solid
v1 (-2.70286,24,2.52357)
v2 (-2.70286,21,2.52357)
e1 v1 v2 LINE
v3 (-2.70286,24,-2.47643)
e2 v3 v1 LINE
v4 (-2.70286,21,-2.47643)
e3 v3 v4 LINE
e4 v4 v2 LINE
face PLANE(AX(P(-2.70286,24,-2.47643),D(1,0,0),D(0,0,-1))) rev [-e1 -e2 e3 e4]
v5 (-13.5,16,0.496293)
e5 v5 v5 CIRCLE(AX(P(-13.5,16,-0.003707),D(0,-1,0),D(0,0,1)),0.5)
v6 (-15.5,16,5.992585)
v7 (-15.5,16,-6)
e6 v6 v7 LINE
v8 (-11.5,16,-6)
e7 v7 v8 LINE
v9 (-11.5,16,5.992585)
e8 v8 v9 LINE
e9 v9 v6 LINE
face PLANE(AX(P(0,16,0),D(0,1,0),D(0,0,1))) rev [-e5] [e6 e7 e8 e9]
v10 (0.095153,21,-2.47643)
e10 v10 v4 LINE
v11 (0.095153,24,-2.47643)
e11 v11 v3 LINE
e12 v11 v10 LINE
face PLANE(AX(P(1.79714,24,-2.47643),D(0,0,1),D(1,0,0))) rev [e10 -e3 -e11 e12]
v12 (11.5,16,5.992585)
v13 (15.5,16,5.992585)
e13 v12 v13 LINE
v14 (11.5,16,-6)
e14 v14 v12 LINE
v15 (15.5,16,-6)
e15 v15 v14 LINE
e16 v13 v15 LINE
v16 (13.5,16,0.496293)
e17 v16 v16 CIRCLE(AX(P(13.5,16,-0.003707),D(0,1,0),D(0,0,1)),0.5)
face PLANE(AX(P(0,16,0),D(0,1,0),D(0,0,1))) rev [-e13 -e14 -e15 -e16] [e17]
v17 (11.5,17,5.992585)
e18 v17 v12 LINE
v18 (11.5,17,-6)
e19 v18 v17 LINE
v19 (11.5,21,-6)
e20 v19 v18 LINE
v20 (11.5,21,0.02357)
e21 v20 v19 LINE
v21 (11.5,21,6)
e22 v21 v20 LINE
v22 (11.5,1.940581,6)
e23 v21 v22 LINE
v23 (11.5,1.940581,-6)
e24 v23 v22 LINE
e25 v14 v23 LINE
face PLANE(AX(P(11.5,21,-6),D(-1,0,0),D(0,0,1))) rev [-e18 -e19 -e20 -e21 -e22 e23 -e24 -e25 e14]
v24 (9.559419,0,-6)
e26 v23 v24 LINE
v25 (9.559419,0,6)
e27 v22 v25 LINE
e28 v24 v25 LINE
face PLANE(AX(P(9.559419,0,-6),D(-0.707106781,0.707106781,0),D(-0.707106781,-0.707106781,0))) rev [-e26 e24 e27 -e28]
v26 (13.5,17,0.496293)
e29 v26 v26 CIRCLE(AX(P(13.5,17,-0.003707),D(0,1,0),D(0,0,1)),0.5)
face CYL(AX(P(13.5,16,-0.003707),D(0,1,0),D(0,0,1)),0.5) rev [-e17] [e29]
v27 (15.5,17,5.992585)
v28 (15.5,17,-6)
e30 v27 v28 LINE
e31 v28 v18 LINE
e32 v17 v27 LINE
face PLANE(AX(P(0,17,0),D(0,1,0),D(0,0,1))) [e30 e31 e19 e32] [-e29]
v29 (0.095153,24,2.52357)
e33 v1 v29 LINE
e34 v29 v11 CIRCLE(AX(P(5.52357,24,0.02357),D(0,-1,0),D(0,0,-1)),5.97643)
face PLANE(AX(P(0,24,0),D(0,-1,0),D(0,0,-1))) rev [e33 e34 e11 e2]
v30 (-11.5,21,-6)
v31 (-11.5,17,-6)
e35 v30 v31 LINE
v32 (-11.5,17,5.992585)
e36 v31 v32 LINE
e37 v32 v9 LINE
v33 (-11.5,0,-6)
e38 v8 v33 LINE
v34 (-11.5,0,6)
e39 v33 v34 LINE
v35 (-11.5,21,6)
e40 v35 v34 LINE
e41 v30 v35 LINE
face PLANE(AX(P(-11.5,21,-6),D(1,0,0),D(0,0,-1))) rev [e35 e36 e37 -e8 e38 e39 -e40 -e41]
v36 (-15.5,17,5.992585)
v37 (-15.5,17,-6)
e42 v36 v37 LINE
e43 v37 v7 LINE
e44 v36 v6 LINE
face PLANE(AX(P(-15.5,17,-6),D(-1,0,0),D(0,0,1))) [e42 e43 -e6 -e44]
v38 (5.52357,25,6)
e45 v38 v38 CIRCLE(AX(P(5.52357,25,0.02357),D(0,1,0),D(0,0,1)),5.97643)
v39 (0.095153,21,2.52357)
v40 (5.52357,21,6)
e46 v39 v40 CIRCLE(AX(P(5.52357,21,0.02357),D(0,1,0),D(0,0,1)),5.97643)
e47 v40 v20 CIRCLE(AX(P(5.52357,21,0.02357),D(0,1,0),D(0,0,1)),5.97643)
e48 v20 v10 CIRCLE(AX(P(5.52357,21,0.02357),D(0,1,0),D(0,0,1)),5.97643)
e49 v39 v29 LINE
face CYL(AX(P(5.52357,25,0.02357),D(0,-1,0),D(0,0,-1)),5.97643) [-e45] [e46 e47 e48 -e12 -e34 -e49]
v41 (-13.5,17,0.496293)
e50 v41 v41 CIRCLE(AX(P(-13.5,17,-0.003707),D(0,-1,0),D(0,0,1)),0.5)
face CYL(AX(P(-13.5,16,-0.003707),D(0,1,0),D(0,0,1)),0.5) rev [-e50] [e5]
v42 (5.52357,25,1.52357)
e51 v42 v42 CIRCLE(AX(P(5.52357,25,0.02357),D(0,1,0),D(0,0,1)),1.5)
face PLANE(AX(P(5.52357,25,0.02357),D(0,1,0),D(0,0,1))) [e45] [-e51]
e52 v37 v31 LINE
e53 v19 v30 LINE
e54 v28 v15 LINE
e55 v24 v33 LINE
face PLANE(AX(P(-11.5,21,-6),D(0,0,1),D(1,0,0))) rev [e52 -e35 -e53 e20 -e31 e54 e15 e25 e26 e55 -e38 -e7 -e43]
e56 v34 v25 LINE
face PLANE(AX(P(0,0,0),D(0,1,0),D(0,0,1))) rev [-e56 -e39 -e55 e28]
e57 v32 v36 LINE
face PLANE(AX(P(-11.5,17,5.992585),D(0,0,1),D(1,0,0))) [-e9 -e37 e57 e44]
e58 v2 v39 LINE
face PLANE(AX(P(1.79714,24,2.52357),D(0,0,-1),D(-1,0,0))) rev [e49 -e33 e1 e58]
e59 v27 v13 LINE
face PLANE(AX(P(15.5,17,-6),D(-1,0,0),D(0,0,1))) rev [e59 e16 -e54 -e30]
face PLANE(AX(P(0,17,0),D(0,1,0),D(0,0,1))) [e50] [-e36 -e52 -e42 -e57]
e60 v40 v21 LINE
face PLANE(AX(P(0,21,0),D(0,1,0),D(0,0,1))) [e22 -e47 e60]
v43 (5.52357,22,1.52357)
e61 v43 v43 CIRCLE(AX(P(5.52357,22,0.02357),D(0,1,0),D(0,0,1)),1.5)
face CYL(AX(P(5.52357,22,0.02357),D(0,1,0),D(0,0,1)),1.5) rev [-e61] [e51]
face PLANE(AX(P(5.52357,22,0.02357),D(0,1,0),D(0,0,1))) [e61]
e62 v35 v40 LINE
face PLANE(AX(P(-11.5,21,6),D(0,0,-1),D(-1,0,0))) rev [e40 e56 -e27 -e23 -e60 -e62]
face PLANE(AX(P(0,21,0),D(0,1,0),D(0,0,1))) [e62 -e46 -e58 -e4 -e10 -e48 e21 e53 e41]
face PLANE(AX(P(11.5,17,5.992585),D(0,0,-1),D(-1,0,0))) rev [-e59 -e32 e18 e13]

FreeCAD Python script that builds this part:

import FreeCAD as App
import Part
import Sketcher
from FreeCAD import Vector


def add_polygon(sketch, points):
    """Adds a closed chain of lines whose ends are joined by coincident constraints."""
    first, n = sketch.GeometryCount, len(points)
    for a, b in zip(points, points[1:] + points[:1]):
        sketch.addGeometry(Part.LineSegment(App.Vector(*a, 0), App.Vector(*b, 0)), False)
    for i in range(n):
        sketch.addConstraint(Sketcher.Constraint("Coincident", first + i, 2, first + (i + 1) % n, 1))

doc = App.newDocument("Part")
params = doc.addObject("Spreadsheet::Sheet", "Params")
for row, (alias, value) in enumerate([
    ("sketch1_width", "23 mm"),
    ("sketch1_height", "12 mm"),
    ("pad1_length", "21 mm"),
    ("sketch2_width", "4 mm"),
    ("pad2_length", "1 mm"),
    ("sketch3_diameter", "1 mm"),
    ("pocket1_length", "1 mm"),
    ("pad3_length", "4 mm"),
    ("sketch5_height", "5 mm"),
    ("sketch5_width", "4.5 mm"),
    ("pad4_length", "3 mm"),
    ("sketch7_diameter", "3 mm"),
    ("pocket3_length", "3 mm"),
], start=1):
    params.set(f"A{row}", alias)
    params.set(f"B{row}", "=" + value)
    params.setAlias(f"B{row}", alias)

body = doc.addObject("PartDesign::Body", "Body")

# Sketch on XZ plane
sketch1 = body.newObject("Sketcher::SketchObject", "Sketch")
sketch1.AttachmentSupport = (doc.getObject("XZ_Plane"), [""])
sketch1.MapMode = "FlatFace"
add_polygon(sketch1, [(-12, -6), (-12, 6), (12, 6), (12, -6)])  # lines 0-3
sketch1.addConstraint(Sketcher.Constraint("Vertical", 0))
sketch1.addConstraint(Sketcher.Constraint("Horizontal", 1))
sketch1.addConstraint(Sketcher.Constraint("Vertical", 2))
sketch1.addConstraint(Sketcher.Constraint("Horizontal", 3))
sketch1.addConstraint(Sketcher.Constraint("Symmetric", 0, 2, 2, 2, -1, 1))
sketch1.addConstraint(Sketcher.Constraint("DistanceX", 1, 1, 1, 2, 23.0))
sketch1.addConstraint(Sketcher.Constraint("DistanceY", 0, 1, 0, 2, 12.0))
sketch1.setExpression("Constraints[9]", "Params.sketch1_width")
sketch1.setExpression("Constraints[10]", "Params.sketch1_height")
pad1 = body.newObject("PartDesign::Pad", "Pad")
pad1.Profile = sketch1
pad1.setExpression("Length", "Params.pad1_length")
pad1.Reversed = True

# Sketch on XZ plane
sketch2 = body.newObject("Sketcher::SketchObject", "Sketch001")
sketch2.AttachmentSupport = (doc.getObject("XZ_Plane"), [""])
sketch2.MapMode = "FlatFace"
sketch2.AttachmentOffset = App.Placement(Vector(0, 0, -16), App.Rotation())
add_polygon(sketch2, [(11.5, -6), (11.5, 6), (15.5, 6), (15.5, -6)])  # lines 0-3
sketch2.addConstraint(Sketcher.Constraint("Vertical", 0))
sketch2.addConstraint(Sketcher.Constraint("Horizontal", 1))
sketch2.addConstraint(Sketcher.Constraint("Vertical", 2))
sketch2.addConstraint(Sketcher.Constraint("Horizontal", 3))
sketch2.addConstraint(Sketcher.Constraint("DistanceX", 1, 1, 1, 2, 4.0))
sketch2.addConstraint(Sketcher.Constraint("DistanceY", 2, 2, -1, 1, 6.0))
sketch2.addConstraint(Sketcher.Constraint("DistanceX", -1, 1, 0, 2, 11.5))
sketch2.addConstraint(Sketcher.Constraint("DistanceY", 0, 1, 0, 2, 11.992585))
sketch2.setExpression("Constraints[8]", "Params.sketch2_width")
pad2 = body.newObject("PartDesign::Pad", "Pad001")
pad2.Profile = sketch2
pad2.setExpression("Length", "Params.pad2_length")
pad2.Reversed = True

# Sketch on XZ plane
sketch3 = body.newObject("Sketcher::SketchObject", "Sketch002")
sketch3.AttachmentSupport = (doc.getObject("XZ_Plane"), [""])
sketch3.MapMode = "FlatFace"
sketch3.AttachmentOffset = App.Placement(Vector(0, 0, -17), App.Rotation())
sketch3.addGeometry(Part.Circle(Vector(13.5, 0, 0), Vector(0, 0, 1), 0.5), False)
sketch3.addConstraint(Sketcher.Constraint("Diameter", 0, 1.0))
sketch3.addConstraint(Sketcher.Constraint("DistanceX", -1, 1, 0, 3, 13.5))
sketch3.addConstraint(Sketcher.Constraint("DistanceY", 0, 3, -1, 1, 0.003707))
sketch3.setExpression("Constraints[0]", "Params.sketch3_diameter")
pocket1 = body.newObject("PartDesign::Pocket", "Pocket")
pocket1.Profile = sketch3
pocket1.setExpression("Length", "Params.pocket1_length")
pocket1.Reversed = True
doc.recompute()

mirrored = body.newObject("PartDesign::Mirrored", "Mirrored")
mirrored.Originals = [pad2]
mirrored.MirrorPlane = (doc.getObject("YZ_Plane"), [""])
body.Tip = mirrored
doc.recompute()

mirrored2 = body.newObject("PartDesign::Mirrored", "Mirrored001")
mirrored2.Originals = [pocket1]
mirrored2.MirrorPlane = (doc.getObject("YZ_Plane"), [""])
body.Tip = mirrored2

# Sketch on XZ plane
sketch4 = body.newObject("Sketcher::SketchObject", "Sketch003")
sketch4.AttachmentSupport = (doc.getObject("XZ_Plane"), [""])
sketch4.MapMode = "FlatFace"
sketch4.AttachmentOffset = App.Placement(Vector(0, 0, -21), App.Rotation())
sketch4.addGeometry(Part.Circle(Vector(6, 0, 0), Vector(0, 0, 1), 6), False)
sketch4.addConstraint(Sketcher.Constraint("Diameter", 0, 11.95286))
sketch4.addConstraint(Sketcher.Constraint("DistanceX", -1, 1, 0, 3, 5.52357))
sketch4.addConstraint(Sketcher.Constraint("DistanceY", -1, 1, 0, 3, 0.02357))
pad3 = body.newObject("PartDesign::Pad", "Pad002")
pad3.Profile = sketch4
pad3.setExpression("Length", "Params.pad3_length")
pad3.Reversed = True

# Sketch on XZ plane
sketch5 = body.newObject("Sketcher::SketchObject", "Sketch004")
sketch5.AttachmentSupport = (doc.getObject("XZ_Plane"), [""])
sketch5.MapMode = "FlatFace"
sketch5.AttachmentOffset = App.Placement(Vector(0, 0, -21), App.Rotation())
add_polygon(sketch5, [(-2.7, -2.5), (-2.7, 2.5), (1.8, 2.5), (1.8, -2.5)])  # lines 0-3
sketch5.addConstraint(Sketcher.Constraint("Vertical", 0))
sketch5.addConstraint(Sketcher.Constraint("Horizontal", 1))
sketch5.addConstraint(Sketcher.Constraint("Vertical", 2))
sketch5.addConstraint(Sketcher.Constraint("Horizontal", 3))
sketch5.addConstraint(Sketcher.Constraint("DistanceY", 0, 1, 0, 2, 5.0))
sketch5.addConstraint(Sketcher.Constraint("DistanceX", 1, 1, 1, 2, 4.5))
sketch5.addConstraint(Sketcher.Constraint("DistanceX", 0, 2, -1, 1, 2.70286))
sketch5.addConstraint(Sketcher.Constraint("DistanceY", -1, 1, 0, 2, 2.52357))
sketch5.setExpression("Constraints[8]", "Params.sketch5_height")
sketch5.setExpression("Constraints[9]", "Params.sketch5_width")
pad4 = body.newObject("PartDesign::Pad", "Pad003")
pad4.Profile = sketch5
pad4.setExpression("Length", "Params.pad4_length")
pad4.Reversed = True

# Sketch on XY plane
sketch6 = body.newObject("Sketcher::SketchObject", "Sketch005")
sketch6.AttachmentSupport = (doc.getObject("XY_Plane"), [""])
sketch6.MapMode = "FlatFace"
sketch6.AttachmentOffset = App.Placement(Vector(0, 0, 6), App.Rotation())
add_polygon(sketch6, [(11.5, 1.9), (9.6, 0), (11.5, 0)])  # lines 0-2
sketch6.addConstraint(Sketcher.Constraint("Horizontal", 1))
sketch6.addConstraint(Sketcher.Constraint("Vertical", 2))
sketch6.addConstraint(Sketcher.Constraint("PointOnObject", 0, 2, -1))
sketch6.addConstraint(Sketcher.Constraint("Equal", 1, 2))
sketch6.addConstraint(Sketcher.Constraint("DistanceX", -1, 1, 1, 2, 11.5))
sketch6.addConstraint(Sketcher.Constraint("DistanceX", 1, 1, 1, 2, 1.940581))
pocket2 = body.newObject("PartDesign::Pocket", "Pocket001")
pocket2.Profile = sketch6
pocket2.Type = "ThroughAll"

# Sketch on XZ plane
sketch7 = body.newObject("Sketcher::SketchObject", "Sketch006")
sketch7.AttachmentSupport = (doc.getObject("XZ_Plane"), [""])
sketch7.MapMode = "FlatFace"
sketch7.AttachmentOffset = App.Placement(Vector(0, 0, -25), App.Rotation())
sketch7.addGeometry(Part.Circle(Vector(5.5, 0, 0), Vector(0, 0, 1), 1.5), False)
sketch7.addConstraint(Sketcher.Constraint("Diameter", 0, 3.0))
sketch7.addConstraint(Sketcher.Constraint("DistanceX", -1, 1, 0, 3, 5.52357))
sketch7.addConstraint(Sketcher.Constraint("DistanceY", -1, 1, 0, 3, 0.02357))
sketch7.setExpression("Constraints[0]", "Params.sketch7_diameter")
pocket3 = body.newObject("PartDesign::Pocket", "Pocket002")
pocket3.Profile = sketch7
pocket3.setExpression("Length", "Params.pocket3_length")
pocket3.Reversed = True

doc.recompute()
